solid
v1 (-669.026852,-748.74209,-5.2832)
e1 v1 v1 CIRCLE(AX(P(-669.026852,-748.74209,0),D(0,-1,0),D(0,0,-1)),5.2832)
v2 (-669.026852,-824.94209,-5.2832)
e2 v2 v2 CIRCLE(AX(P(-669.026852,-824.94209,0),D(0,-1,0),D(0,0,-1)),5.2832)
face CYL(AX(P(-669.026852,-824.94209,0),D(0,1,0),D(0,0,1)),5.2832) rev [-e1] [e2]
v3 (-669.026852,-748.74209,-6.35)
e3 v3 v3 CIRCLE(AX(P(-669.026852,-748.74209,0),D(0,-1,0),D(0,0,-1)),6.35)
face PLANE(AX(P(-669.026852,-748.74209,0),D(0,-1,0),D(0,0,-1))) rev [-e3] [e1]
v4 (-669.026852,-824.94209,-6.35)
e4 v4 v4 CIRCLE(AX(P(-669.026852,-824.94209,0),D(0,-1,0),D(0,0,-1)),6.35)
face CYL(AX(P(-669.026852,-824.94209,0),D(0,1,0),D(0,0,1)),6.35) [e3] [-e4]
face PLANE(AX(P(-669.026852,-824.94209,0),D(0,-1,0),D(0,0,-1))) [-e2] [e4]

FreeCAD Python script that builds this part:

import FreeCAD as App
import Part
import Sketcher

V = App.Vector
Q = App.Units.Quantity

doc = App.newDocument("Part")
body = doc.addObject("PartDesign::Body", "Body")

sketch1 = body.newObject("Sketcher::SketchObject", "Sketch")
sketch1.AttachmentSupport = (doc.getObject("XZ_Plane"), [""])
sketch1.MapMode = "FlatFace"
sketch1.AttachmentOffset = App.Placement(V(0, 0, 748.74209), App.Rotation())
sketch1.addGeometry(Part.Circle(V(-669, 0, 0), V(0, 0, 1), 6), False)
sketch1.addGeometry(Part.Circle(V(-669, 0, 0), V(0, 0, 1), 5), False)
sketch1.addConstraint(Sketcher.Constraint("Coincident", 1, 3, 0, 3))
sketch1.addConstraint(Sketcher.Constraint("PointOnObject", 0, 3, -1))
sketch1.addConstraint(Sketcher.Constraint("Diameter", 0, Q("0.5 in")))
sketch1.addConstraint(Sketcher.Constraint("Diameter", 1, Q("0.416 in")))
sketch1.addConstraint(Sketcher.Constraint("DistanceX", 0, 3, -1, 1, 669.026852))
pad1 = body.newObject("PartDesign::Pad", "Pad")
pad1.Profile = sketch1
pad1.Length = Q("3 in")

doc.recompute()
